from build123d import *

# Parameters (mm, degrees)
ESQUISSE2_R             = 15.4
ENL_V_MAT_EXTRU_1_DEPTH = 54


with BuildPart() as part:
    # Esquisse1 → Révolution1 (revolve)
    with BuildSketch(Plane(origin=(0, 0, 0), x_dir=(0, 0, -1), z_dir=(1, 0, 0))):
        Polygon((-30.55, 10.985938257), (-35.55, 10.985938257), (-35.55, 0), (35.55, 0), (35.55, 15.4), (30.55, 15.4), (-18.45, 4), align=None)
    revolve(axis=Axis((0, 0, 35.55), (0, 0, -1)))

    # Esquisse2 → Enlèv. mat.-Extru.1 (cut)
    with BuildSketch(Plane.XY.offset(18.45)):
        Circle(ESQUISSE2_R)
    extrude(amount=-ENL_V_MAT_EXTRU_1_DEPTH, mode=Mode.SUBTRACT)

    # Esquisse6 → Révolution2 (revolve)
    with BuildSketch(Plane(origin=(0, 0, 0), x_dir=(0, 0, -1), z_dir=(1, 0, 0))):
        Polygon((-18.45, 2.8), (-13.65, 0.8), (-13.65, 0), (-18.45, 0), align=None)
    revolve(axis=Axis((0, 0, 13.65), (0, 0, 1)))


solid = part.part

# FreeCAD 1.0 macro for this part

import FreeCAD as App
import Part
import Sketcher
from FreeCAD import Vector
Q = App.Units.Quantity


def add_polygon(sketch, points):
    """Adds a closed chain of lines whose ends are joined by coincident constraints."""
    first, n = sketch.GeometryCount, len(points)
    for a, b in zip(points, points[1:] + points[:1]):
        sketch.addGeometry(Part.LineSegment(App.Vector(*a, 0), App.Vector(*b, 0)), False)
    for i in range(n):
        sketch.addConstraint(Sketcher.Constraint("Coincident", first + i, 2, first + (i + 1) % n, 1))

doc = App.newDocument("Part")
body = doc.addObject("PartDesign::Body", "Body")

# Sketch on YZ plane
sketch1 = body.newObject("Sketcher::SketchObject", "Sketch")
sketch1.AttachmentSupport = (doc.getObject("YZ_Plane"), [""])
sketch1.MapMode = "FlatFace"
add_polygon(sketch1, [(11, 30.6), (11, 35.5), (0, 35.5), (0, -35.5), (15.4, -35.5), (15.4, -30.6), (4, 18.4)])  # lines 0-6
sketch1.addConstraint(Sketcher.Constraint("Vertical", 0))
sketch1.addConstraint(Sketcher.Constraint("Horizontal", 1))
sketch1.addConstraint(Sketcher.Constraint("Vertical", 2))
sketch1.addConstraint(Sketcher.Constraint("Horizontal", 3))
sketch1.addConstraint(Sketcher.Constraint("Vertical", 4))
sketch1.addConstraint(Sketcher.Constraint("Symmetric", 1, 2, 2, 2, -1, 1))
sketch1.addConstraint(Sketcher.Constraint("Equal", 0, 4))
sketch1.addConstraint(Sketcher.Constraint("DistanceY", 0, 1, 0, 2, Q("5 mm")))
sketch1.addConstraint(Sketcher.Constraint("Angle", 6, Q("60 deg")))
sketch1.addConstraint(Sketcher.Constraint("DistanceX", 3, 1, 3, 2, Q("15.4 mm")))
sketch1.addConstraint(Sketcher.Constraint("DistanceY", 2, 2, 2, 1, Q("71.1 mm")))
sketch1.addConstraint(Sketcher.Constraint("DistanceX", -1, 1, 5, 2, Q("4 mm")))
sketch1.addConstraint(Sketcher.Constraint("DistanceY", 4, 2, 5, 2, Q("49 mm")))
revolution = body.newObject("PartDesign::Revolution", "Revolution")
revolution.Profile = sketch1
revolution.ReferenceAxis = (sketch1, ["V_Axis"])
revolution.Angle = 360

# Sketch on XY plane
sketch2 = body.newObject("Sketcher::SketchObject", "Sketch001")
sketch2.AttachmentSupport = (doc.getObject("XY_Plane"), [""])
sketch2.MapMode = "FlatFace"
sketch2.AttachmentOffset = App.Placement(Vector(0, 0, 18.45), App.Rotation())
sketch2.addGeometry(Part.Circle(Vector(0, 0, 0), Vector(0, 0, 1), 15), False)
sketch2.addConstraint(Sketcher.Constraint("Coincident", 0, 3, -1, 1))
sketch2.addConstraint(Sketcher.Constraint("Diameter", 0, Q("30.8 mm")))
pocket1 = body.newObject("PartDesign::Pocket", "Pocket")
pocket1.Profile = sketch2
pocket1.Length = 54

# Sketch on YZ plane
sketch3 = body.newObject("Sketcher::SketchObject", "Sketch002")
sketch3.AttachmentSupport = (doc.getObject("YZ_Plane"), [""])
sketch3.MapMode = "FlatFace"
add_polygon(sketch3, [(0.8, 13.7), (2.8, 18.4), (0, 18.4), (0, 13.7)])  # lines 0-3
sketch3.addConstraint(Sketcher.Constraint("Horizontal", 1))
sketch3.addConstraint(Sketcher.Constraint("Vertical", 2))
sketch3.addConstraint(Sketcher.Constraint("Horizontal", 3))
sketch3.addConstraint(Sketcher.Constraint("PointOnObject", 1, 2, -2))
sketch3.addConstraint(Sketcher.Constraint("DistanceX", 1, 2, 1, 1, Q("2.8 mm")))
sketch3.addConstraint(Sketcher.Constraint("DistanceX", 3, 1, 3, 2, Q("0.8 mm")))
sketch3.addConstraint(Sketcher.Constraint("DistanceY", 2, 2, 2, 1, Q("4.8 mm")))
sketch3.addConstraint(Sketcher.Constraint("DistanceY", -1, 1, 0, 2, Q("18.45 mm")))
revolution2 = body.newObject("PartDesign::Revolution", "Revolution001")
revolution2.Profile = sketch3
revolution2.ReferenceAxis = (sketch3, ["V_Axis"])
revolution2.Angle = 360

doc.recompute()
